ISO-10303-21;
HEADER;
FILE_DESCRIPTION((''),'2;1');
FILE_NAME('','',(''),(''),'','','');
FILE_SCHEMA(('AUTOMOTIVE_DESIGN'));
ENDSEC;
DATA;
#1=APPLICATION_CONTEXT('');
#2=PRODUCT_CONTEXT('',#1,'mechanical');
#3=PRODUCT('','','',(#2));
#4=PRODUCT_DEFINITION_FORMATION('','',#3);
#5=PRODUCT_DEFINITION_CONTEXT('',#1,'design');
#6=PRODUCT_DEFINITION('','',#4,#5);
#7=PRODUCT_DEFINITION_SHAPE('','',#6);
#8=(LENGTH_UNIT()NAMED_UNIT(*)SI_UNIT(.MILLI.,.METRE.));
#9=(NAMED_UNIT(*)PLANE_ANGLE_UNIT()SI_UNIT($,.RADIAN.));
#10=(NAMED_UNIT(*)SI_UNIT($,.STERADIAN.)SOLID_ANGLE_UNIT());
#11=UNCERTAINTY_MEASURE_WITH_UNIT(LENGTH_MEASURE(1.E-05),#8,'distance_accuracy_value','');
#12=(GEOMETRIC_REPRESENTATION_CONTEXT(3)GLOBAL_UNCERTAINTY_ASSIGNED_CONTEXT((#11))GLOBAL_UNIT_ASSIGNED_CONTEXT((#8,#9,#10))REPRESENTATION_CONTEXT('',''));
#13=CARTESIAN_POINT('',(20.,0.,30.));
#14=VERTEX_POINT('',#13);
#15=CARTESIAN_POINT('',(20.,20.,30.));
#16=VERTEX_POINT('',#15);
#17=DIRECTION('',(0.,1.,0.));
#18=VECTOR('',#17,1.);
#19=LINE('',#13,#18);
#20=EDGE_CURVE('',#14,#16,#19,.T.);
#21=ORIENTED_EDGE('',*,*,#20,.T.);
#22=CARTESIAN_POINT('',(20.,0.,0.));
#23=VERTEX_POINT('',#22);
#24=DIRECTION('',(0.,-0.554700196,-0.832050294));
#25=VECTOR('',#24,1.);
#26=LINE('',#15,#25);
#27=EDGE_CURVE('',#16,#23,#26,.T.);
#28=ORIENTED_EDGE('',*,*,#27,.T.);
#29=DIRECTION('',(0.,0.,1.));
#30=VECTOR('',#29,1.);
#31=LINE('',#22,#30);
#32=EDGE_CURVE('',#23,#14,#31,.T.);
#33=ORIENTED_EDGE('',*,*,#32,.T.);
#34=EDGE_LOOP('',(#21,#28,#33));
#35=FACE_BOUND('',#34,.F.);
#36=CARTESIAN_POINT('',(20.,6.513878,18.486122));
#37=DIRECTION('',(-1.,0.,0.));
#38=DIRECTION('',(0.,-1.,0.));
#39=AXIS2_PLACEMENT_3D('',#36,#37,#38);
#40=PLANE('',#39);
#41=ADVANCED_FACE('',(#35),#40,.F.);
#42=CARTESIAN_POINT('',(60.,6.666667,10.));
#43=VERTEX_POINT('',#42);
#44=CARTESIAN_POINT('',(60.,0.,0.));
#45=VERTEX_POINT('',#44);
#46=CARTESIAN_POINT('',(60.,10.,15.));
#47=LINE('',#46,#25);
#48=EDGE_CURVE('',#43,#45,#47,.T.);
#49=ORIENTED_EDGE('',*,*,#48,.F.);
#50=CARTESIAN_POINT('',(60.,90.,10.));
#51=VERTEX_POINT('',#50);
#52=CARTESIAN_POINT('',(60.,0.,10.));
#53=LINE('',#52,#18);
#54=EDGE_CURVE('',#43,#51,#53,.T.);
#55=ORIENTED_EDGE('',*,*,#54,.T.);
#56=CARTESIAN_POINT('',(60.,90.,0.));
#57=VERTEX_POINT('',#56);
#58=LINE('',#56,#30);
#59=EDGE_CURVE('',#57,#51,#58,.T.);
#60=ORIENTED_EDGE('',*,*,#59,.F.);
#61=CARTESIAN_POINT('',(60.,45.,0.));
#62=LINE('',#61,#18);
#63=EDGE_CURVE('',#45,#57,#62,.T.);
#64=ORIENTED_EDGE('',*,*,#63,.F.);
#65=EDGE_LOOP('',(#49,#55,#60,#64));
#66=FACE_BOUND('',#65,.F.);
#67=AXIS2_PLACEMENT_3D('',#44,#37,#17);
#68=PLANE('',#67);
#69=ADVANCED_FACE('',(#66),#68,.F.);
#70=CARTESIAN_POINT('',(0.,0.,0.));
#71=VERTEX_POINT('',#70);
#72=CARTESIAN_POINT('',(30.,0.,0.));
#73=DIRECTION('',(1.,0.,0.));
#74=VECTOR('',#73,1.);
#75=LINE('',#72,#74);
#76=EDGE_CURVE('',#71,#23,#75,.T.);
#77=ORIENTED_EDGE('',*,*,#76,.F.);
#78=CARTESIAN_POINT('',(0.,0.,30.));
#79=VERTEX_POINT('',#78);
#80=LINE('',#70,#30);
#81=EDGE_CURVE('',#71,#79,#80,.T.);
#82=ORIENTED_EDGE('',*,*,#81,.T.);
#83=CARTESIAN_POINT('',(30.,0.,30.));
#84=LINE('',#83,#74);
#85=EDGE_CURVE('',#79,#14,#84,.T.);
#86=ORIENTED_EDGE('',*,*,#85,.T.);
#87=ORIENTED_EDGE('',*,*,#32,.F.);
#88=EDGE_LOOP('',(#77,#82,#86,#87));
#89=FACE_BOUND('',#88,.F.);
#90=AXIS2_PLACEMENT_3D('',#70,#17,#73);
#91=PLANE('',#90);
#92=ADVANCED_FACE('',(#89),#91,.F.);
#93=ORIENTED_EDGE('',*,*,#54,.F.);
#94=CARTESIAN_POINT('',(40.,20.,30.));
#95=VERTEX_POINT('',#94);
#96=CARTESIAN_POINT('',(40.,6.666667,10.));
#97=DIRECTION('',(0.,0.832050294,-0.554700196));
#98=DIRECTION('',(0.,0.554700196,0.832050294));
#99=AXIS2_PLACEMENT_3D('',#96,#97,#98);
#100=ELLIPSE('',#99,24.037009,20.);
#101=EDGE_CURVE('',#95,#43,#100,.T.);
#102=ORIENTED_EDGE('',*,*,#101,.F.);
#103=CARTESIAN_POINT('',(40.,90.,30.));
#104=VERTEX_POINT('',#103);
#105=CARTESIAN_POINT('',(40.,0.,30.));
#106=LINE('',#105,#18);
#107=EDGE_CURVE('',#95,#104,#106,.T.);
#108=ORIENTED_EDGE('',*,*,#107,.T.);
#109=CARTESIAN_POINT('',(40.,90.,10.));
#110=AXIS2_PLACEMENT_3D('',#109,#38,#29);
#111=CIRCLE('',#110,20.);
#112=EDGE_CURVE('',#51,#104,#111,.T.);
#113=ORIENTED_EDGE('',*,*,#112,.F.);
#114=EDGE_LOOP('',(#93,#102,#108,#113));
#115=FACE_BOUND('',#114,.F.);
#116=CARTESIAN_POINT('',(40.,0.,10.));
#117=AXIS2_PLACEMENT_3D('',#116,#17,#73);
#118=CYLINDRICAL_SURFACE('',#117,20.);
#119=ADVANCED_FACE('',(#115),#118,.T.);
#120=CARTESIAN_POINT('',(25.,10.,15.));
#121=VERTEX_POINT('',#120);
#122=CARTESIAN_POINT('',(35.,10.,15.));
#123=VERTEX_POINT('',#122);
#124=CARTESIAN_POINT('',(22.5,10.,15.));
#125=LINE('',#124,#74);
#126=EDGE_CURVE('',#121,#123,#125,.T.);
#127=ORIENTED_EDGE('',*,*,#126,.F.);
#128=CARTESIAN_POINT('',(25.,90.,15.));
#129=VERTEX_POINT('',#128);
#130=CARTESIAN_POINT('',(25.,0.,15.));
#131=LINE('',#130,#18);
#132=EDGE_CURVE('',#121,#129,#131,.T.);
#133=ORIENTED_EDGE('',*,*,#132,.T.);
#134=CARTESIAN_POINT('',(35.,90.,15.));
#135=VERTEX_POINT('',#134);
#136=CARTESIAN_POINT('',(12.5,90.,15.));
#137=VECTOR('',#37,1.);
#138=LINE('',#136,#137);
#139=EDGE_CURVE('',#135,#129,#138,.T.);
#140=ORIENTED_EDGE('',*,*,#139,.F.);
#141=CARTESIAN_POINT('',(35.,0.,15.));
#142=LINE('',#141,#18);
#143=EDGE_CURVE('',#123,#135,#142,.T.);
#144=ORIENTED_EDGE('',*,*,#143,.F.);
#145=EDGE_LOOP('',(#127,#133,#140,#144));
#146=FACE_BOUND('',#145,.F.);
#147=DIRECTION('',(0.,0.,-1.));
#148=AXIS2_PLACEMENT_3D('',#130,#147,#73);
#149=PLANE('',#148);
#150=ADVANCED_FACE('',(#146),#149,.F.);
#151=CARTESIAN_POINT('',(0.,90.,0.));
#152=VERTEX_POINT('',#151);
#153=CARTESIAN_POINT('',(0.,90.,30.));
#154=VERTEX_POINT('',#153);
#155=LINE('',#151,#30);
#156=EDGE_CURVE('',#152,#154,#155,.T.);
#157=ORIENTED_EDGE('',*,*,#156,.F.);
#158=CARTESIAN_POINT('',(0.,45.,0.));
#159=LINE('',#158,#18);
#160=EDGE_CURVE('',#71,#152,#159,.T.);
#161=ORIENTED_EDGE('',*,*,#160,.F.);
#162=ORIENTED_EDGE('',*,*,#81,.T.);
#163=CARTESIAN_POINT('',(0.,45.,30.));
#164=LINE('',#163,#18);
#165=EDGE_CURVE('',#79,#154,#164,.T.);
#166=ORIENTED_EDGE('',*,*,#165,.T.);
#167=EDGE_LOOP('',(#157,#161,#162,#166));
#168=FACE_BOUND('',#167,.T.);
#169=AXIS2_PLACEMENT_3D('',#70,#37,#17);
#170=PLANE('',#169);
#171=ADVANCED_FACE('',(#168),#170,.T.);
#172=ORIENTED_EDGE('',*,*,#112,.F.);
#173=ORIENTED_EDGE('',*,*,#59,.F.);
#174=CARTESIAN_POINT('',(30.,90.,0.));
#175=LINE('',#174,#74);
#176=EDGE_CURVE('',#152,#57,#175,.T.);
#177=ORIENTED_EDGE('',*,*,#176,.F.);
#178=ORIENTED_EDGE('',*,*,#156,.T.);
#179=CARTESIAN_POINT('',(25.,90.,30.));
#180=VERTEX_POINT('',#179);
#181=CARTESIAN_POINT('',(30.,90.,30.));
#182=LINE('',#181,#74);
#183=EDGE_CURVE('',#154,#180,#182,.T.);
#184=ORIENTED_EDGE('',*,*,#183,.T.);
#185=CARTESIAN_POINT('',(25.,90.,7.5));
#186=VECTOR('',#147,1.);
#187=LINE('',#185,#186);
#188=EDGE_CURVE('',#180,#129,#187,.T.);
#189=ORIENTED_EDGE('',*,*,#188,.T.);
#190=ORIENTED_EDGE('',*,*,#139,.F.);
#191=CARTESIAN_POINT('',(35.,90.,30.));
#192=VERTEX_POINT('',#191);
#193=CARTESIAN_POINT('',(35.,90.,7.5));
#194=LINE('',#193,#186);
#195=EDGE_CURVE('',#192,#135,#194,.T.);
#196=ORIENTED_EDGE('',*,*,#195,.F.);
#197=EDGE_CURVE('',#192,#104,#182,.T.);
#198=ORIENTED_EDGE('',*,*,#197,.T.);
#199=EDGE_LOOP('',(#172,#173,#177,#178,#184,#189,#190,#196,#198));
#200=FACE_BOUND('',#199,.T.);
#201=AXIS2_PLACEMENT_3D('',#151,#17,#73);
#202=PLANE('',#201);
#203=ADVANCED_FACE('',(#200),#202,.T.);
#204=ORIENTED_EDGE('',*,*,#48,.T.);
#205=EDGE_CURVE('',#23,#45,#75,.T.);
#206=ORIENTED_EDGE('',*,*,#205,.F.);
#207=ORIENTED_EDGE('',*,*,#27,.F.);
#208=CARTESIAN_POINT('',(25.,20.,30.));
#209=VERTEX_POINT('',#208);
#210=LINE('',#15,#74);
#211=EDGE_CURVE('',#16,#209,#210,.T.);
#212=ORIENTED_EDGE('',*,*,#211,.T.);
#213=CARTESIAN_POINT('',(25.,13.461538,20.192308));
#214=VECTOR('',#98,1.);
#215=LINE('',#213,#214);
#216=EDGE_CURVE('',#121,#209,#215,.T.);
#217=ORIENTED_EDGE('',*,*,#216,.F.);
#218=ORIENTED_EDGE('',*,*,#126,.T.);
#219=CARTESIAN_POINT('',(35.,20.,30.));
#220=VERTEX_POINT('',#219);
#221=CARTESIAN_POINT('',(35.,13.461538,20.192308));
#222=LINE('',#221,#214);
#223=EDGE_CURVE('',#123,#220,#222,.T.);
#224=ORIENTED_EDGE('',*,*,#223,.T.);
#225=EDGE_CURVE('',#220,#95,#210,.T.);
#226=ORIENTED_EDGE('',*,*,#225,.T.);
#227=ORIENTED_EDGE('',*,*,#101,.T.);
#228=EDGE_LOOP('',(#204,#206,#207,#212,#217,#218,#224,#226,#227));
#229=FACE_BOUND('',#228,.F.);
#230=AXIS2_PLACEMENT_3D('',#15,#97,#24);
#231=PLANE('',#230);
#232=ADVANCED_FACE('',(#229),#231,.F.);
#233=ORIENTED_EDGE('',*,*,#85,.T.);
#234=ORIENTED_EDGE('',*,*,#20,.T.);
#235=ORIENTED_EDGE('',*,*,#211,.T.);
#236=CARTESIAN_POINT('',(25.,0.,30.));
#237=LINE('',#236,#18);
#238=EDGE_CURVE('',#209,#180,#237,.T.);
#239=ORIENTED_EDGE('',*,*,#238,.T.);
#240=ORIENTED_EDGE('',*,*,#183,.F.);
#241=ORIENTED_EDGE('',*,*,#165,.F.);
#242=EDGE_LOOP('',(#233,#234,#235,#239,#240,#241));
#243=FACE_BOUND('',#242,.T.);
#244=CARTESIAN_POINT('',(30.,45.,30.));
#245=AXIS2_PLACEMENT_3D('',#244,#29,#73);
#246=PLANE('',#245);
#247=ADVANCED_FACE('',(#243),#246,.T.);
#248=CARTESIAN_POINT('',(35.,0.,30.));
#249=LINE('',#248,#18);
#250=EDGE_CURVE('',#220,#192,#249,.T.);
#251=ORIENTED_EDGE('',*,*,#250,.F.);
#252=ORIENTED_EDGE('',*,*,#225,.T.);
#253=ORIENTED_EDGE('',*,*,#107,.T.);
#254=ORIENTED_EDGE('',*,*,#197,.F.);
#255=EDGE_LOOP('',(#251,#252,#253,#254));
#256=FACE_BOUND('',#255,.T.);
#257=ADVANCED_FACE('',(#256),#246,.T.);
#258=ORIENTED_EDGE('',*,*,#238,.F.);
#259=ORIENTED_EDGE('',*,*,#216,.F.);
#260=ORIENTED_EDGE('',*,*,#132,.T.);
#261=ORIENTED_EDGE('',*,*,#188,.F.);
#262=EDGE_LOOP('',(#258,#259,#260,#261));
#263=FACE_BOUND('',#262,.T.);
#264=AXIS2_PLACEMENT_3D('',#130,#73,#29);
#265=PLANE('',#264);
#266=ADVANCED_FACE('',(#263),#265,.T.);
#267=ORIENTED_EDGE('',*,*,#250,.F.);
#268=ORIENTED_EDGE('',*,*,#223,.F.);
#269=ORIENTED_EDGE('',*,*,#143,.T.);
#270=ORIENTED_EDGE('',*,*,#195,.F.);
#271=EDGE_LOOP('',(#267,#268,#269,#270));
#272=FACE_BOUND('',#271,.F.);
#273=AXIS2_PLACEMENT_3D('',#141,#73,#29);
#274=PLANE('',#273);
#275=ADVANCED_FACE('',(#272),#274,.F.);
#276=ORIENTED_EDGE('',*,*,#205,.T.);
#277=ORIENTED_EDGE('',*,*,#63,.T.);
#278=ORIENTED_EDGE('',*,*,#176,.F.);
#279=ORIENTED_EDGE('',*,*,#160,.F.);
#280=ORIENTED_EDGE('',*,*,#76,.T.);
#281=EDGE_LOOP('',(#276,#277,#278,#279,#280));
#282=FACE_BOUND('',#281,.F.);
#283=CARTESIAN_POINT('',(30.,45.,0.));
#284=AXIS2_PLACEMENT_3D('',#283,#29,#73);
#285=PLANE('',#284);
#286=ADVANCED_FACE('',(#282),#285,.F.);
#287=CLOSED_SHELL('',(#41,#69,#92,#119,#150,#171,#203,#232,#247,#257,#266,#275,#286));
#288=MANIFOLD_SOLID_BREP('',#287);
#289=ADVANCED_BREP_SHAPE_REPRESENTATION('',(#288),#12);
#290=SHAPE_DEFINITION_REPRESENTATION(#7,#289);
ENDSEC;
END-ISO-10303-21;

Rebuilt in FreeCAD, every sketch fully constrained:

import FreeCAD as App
import Part
import Sketcher


def edges_at(feature, points):
    """Names of the edges that pass closest to the given points."""
    edges = feature.Shape.Edges
    near = lambda p: min(range(len(edges)), key=lambda i: edges[i].distToShape(Part.Vertex(*p))[0])
    return sorted({f"Edge{near(p) + 1}" for p in points})

doc = App.newDocument("Part")
body = doc.addObject("PartDesign::Body", "Body")

# Sketch on XY plane
sketch1 = doc.addObject("Sketcher::SketchObject", "Sketch")
body.addObject(sketch1)
sketch1.AttachmentSupport = (doc.XY_Plane, [""])
sketch1.MapMode = "FlatFace"
sketch1.addGeometry([
    Part.LineSegment(App.Vector(0, 90, 0), App.Vector(0, 0, 0)),
    Part.LineSegment(App.Vector(0, 0, 0), App.Vector(60, 0, 0)),
    Part.LineSegment(App.Vector(60, 0, 0), App.Vector(60, 90, 0)),
    Part.LineSegment(App.Vector(60, 90, 0), App.Vector(0, 90, 0)),
], False)
sketch1.addConstraint([
    Sketcher.Constraint("Coincident", 0, 2, 1, 1),
    Sketcher.Constraint("Coincident", 1, 2, 2, 1),
    Sketcher.Constraint("Coincident", 2, 2, 3, 1),
    Sketcher.Constraint("Coincident", 3, 2, 0, 1),
    Sketcher.Constraint("Vertical", 0),
    Sketcher.Constraint("Horizontal", 1),
    Sketcher.Constraint("Vertical", 2),
    Sketcher.Constraint("Horizontal", 3),
    Sketcher.Constraint("Coincident", 0, 2, -1, 1),
    Sketcher.Constraint("DistanceX", 1, 1, 1, 2, 60.0),
    Sketcher.Constraint("DistanceY", 0, 2, 0, 1, 90.0),
])
pad1 = doc.addObject("PartDesign::Pad", "Pad")
body.addObject(pad1)
pad1.Profile = sketch1
pad1.Length = 30
doc.recompute()

fillet = doc.addObject("PartDesign::Fillet", "Fillet")
body.addObject(fillet)
fillet.Base = (pad1, edges_at(pad1, [(60, 45, 30)]))
fillet.Radius = 20

# Sketch on XZ plane
sketch2 = doc.addObject("Sketcher::SketchObject", "Sketch001")
body.addObject(sketch2)
sketch2.AttachmentSupport = (doc.XZ_Plane, [""])
sketch2.MapMode = "FlatFace"
sketch2.addGeometry([
    Part.LineSegment(App.Vector(25, 30, 0), App.Vector(25, 15, 0)),
    Part.LineSegment(App.Vector(25, 15, 0), App.Vector(35, 15, 0)),
    Part.LineSegment(App.Vector(35, 15, 0), App.Vector(35, 30, 0)),
    Part.LineSegment(App.Vector(35, 30, 0), App.Vector(25, 30, 0)),
], False)
sketch2.addConstraint([
    Sketcher.Constraint("Coincident", 0, 2, 1, 1),
    Sketcher.Constraint("Coincident", 1, 2, 2, 1),
    Sketcher.Constraint("Coincident", 2, 2, 3, 1),
    Sketcher.Constraint("Coincident", 3, 2, 0, 1),
    Sketcher.Constraint("Vertical", 0),
    Sketcher.Constraint("Horizontal", 1),
    Sketcher.Constraint("Vertical", 2),
    Sketcher.Constraint("Horizontal", 3),
    Sketcher.Constraint("DistanceX", 1, 1, 1, 2, 10.0),
    Sketcher.Constraint("DistanceY", 0, 2, 0, 1, 15.0),
    Sketcher.Constraint("DistanceX", -1, 1, 0, 2, 25.0),
    Sketcher.Constraint("DistanceY", -1, 1, 0, 2, 15.0),
])
pocket1 = doc.addObject("PartDesign::Pocket", "Pocket")
body.addObject(pocket1)
pocket1.Profile = sketch2
pocket1.Type = "ThroughAll"

# Sketch on YZ plane
sketch3 = doc.addObject("Sketcher::SketchObject", "Sketch002")
body.addObject(sketch3)
sketch3.AttachmentSupport = (doc.YZ_Plane, [""])
sketch3.MapMode = "FlatFace"
sketch3.AttachmentOffset = App.Placement(App.Vector(0, 0, 20), App.Rotation())
sketch3.addGeometry([
    Part.LineSegment(App.Vector(20, 30, 0), App.Vector(0, 0, 0)),
    Part.LineSegment(App.Vector(0, 0, 0), App.Vector(0, 30, 0)),
    Part.LineSegment(App.Vector(0, 30, 0), App.Vector(20, 30, 0)),
], False)
sketch3.addConstraint([
    Sketcher.Constraint("Coincident", 0, 2, 1, 1),
    Sketcher.Constraint("Coincident", 1, 2, 2, 1),
    Sketcher.Constraint("Coincident", 2, 2, 0, 1),
    Sketcher.Constraint("Vertical", 1),
    Sketcher.Constraint("Horizontal", 2),
    Sketcher.Constraint("Coincident", 0, 2, -1, 1),
    Sketcher.Constraint("DistanceX", 2, 1, 2, 2, 20.0),
    Sketcher.Constraint("DistanceY", 1, 1, 1, 2, 30.0),
])
pocket2 = doc.addObject("PartDesign::Pocket", "Pocket001")
body.addObject(pocket2)
pocket2.Profile = sketch3
pocket2.Type = "ThroughAll"
pocket2.Reversed = True

doc.recompute()
